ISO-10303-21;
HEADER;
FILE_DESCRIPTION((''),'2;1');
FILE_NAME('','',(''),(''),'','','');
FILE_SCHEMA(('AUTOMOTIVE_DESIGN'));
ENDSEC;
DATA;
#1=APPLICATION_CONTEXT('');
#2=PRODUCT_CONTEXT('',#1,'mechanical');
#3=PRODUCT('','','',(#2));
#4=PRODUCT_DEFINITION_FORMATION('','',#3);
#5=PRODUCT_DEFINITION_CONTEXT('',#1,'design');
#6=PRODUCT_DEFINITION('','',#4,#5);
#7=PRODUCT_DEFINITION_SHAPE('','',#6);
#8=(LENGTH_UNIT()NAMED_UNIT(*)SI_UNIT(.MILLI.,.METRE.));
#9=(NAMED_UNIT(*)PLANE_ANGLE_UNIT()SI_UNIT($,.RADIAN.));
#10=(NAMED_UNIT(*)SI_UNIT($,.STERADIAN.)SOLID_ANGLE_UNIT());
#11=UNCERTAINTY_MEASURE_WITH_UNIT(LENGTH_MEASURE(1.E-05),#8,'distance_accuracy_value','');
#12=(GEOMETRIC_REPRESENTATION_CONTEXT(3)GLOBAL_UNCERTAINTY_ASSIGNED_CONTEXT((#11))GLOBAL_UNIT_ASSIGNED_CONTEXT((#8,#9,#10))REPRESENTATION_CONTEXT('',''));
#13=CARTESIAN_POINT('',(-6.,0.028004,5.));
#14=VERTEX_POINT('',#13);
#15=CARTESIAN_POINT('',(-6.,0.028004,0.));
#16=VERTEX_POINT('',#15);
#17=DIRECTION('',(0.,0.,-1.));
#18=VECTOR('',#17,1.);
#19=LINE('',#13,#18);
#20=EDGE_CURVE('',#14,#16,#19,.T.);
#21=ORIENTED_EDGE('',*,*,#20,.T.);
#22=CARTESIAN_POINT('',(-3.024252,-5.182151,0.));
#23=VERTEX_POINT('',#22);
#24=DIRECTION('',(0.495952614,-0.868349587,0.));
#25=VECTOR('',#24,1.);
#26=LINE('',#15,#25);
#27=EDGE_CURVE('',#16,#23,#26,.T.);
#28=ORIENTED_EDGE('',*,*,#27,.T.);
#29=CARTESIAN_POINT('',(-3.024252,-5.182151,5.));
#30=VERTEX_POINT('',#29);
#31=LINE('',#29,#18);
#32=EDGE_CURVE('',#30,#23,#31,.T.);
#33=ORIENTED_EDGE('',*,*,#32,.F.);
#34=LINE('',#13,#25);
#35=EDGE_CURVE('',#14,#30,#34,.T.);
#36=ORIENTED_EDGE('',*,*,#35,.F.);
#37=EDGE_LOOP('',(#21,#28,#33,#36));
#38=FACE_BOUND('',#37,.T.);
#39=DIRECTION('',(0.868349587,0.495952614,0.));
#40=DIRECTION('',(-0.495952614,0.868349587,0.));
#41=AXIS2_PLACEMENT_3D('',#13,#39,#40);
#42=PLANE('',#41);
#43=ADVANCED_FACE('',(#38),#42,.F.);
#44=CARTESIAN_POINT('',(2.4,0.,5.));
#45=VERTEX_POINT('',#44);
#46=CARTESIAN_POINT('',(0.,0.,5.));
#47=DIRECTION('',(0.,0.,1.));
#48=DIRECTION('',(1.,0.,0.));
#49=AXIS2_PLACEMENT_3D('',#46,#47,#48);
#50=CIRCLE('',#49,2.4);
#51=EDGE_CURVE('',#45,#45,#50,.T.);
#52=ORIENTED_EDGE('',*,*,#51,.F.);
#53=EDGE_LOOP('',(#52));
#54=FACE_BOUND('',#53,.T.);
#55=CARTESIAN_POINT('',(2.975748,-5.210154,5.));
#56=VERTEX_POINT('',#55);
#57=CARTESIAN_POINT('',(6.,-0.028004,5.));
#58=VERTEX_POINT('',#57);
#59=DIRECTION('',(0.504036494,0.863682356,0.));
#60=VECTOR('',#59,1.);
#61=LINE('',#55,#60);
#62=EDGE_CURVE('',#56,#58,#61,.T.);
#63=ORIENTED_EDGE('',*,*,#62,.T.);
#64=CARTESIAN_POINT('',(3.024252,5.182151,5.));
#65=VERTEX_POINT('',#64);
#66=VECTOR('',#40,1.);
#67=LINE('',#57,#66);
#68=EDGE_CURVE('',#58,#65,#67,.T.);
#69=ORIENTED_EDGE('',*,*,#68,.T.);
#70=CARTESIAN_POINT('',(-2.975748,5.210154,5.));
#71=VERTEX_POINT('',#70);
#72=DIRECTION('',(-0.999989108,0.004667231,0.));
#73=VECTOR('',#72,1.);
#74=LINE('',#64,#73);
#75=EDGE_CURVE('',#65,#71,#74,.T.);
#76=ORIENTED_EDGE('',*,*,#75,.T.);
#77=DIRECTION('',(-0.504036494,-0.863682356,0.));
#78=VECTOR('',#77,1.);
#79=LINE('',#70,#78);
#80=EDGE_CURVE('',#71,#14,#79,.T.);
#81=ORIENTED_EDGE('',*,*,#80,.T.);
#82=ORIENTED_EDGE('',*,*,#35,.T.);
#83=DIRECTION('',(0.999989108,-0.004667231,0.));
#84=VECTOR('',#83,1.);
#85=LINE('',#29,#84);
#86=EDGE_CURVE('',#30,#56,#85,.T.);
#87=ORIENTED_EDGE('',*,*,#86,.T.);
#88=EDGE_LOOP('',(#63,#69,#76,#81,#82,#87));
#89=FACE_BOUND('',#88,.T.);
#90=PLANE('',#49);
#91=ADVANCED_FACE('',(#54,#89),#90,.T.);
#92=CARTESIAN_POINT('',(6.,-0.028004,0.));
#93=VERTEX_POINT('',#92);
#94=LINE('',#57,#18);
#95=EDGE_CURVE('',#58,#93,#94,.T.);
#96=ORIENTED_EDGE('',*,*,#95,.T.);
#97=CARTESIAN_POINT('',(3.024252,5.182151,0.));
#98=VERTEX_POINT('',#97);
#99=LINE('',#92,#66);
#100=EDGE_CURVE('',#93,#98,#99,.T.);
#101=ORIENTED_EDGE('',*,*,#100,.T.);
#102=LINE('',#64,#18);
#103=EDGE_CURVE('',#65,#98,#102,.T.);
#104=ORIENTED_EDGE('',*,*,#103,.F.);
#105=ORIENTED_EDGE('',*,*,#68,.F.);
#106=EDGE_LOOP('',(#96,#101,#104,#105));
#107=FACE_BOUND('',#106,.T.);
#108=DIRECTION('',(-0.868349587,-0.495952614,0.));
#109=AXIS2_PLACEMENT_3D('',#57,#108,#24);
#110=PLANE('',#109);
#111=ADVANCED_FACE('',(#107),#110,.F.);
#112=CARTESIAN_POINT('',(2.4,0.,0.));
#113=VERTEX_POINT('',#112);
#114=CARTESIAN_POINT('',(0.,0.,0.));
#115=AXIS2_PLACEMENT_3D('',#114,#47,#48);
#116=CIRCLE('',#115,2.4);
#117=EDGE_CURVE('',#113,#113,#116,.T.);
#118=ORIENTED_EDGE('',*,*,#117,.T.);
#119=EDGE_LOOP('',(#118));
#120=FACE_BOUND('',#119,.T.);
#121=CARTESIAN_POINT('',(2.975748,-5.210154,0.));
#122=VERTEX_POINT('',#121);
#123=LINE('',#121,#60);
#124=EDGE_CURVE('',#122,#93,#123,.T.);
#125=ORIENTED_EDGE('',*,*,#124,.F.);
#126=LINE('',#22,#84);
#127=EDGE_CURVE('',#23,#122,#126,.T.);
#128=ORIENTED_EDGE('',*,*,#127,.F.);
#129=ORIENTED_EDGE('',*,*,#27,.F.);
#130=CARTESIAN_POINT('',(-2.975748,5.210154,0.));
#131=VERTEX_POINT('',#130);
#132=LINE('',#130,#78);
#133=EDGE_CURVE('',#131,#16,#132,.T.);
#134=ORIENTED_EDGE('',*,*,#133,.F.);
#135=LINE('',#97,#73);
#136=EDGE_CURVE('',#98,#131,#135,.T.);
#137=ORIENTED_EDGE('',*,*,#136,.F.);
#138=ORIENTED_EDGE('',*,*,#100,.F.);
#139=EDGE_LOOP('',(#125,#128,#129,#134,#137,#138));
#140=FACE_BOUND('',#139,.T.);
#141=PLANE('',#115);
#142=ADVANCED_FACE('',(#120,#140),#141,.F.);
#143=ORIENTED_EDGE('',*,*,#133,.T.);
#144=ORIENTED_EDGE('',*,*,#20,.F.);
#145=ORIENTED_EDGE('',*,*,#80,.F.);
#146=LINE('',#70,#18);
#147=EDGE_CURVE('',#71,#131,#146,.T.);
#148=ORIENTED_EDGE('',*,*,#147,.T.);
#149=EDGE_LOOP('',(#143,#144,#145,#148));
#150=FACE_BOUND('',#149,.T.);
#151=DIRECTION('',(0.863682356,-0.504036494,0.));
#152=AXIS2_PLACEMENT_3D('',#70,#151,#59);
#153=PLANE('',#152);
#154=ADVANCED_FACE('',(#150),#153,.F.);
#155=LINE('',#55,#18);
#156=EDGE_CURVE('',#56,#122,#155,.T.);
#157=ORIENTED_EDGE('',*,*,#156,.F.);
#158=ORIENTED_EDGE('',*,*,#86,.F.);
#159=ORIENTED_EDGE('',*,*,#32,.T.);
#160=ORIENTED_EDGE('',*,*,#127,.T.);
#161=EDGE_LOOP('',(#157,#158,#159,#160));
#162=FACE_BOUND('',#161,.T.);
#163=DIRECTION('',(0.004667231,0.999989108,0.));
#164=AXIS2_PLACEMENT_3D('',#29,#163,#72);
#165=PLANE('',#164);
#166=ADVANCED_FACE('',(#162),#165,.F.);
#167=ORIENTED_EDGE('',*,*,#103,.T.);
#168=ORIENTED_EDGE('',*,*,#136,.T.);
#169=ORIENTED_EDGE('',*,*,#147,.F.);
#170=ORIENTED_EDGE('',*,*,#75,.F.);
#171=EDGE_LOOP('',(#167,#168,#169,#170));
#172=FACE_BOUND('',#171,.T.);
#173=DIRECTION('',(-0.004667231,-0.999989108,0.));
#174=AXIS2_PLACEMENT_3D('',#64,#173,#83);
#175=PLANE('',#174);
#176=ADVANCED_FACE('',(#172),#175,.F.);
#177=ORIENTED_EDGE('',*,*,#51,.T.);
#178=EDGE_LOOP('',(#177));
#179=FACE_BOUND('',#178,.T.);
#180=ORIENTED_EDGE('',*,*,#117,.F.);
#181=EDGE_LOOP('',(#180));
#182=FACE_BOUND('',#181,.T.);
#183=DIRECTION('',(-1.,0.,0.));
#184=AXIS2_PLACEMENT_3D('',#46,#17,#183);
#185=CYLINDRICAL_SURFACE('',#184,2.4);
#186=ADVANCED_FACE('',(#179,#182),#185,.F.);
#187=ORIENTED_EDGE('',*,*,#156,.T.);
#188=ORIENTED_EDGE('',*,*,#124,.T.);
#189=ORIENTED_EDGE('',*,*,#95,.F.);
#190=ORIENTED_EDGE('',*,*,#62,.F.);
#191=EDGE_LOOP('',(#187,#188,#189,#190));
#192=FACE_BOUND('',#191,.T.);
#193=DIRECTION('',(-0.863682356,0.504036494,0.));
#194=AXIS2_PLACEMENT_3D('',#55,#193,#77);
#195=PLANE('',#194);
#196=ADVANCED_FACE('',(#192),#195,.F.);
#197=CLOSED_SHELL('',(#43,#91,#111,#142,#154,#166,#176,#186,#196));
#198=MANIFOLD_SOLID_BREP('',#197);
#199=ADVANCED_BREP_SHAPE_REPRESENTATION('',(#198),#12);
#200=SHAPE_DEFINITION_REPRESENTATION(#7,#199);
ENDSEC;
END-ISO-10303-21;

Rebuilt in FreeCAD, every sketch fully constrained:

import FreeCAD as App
import Part
import Sketcher
from FreeCAD import Vector

doc = App.newDocument("Part")
body = doc.addObject("PartDesign::Body", "Body")

# Sketch on XY plane
sketch1 = body.newObject("Sketcher::SketchObject", "Sketch")
sketch1.AttachmentSupport = (doc.getObject("XY_Plane"), [""])
sketch1.MapMode = "FlatFace"
sketch1.addGeometry([
    Part.LineSegment(Vector(-3, 5.2, 0), Vector(-6, 0, 0)),  # 0
    Part.LineSegment(Vector(-6, 0, 0), Vector(-3, -5.2, 0)),  # 1
    Part.LineSegment(Vector(-3, -5.2, 0), Vector(3, -5.2, 0)),  # 2
    Part.LineSegment(Vector(3, -5.2, 0), Vector(6, 0, 0)),  # 3
    Part.LineSegment(Vector(6, 0, 0), Vector(3, 5.2, 0)),  # 4
    Part.LineSegment(Vector(3, 5.2, 0), Vector(-3, 5.2, 0)),  # 5
    Part.Circle(Vector(0, 0, 0), Vector(0, 0, 1), 2.4),  # 6
], False)
sketch1.addConstraint([
    Sketcher.Constraint("Coincident", 0, 2, 1, 1),
    Sketcher.Constraint("Coincident", 1, 2, 2, 1),
    Sketcher.Constraint("Coincident", 2, 2, 3, 1),
    Sketcher.Constraint("Coincident", 3, 2, 4, 1),
    Sketcher.Constraint("Coincident", 4, 2, 5, 1),
    Sketcher.Constraint("Coincident", 5, 2, 0, 1),
    Sketcher.Constraint("Coincident", 6, 3, -1, 1),
    Sketcher.Constraint("Symmetric", 0, 2, 3, 2, -1, 1),
    Sketcher.Constraint("Symmetric", 1, 2, 4, 2, -1, 1),
    Sketcher.Constraint("Symmetric", 2, 2, 5, 2, -1, 1),
    Sketcher.Constraint("Equal", 0, 1),
    Sketcher.Constraint("Equal", 1, 2),
    Sketcher.Constraint("Diameter", 6, 4.8),
    Sketcher.Constraint("DistanceX", 0, 2, -1, 1, 6.0),
    Sketcher.Constraint("DistanceX", 1, 2, 2, 2, 6.0),
    Sketcher.Constraint("DistanceY", 1, 2, 4, 2, 10.364301),
    Sketcher.Constraint("DistanceX", 1, 2, -1, 1, 3.024252),
])
pad1 = body.newObject("PartDesign::Pad", "Pad")
pad1.Profile = sketch1
pad1.Length = 5

doc.recompute()
